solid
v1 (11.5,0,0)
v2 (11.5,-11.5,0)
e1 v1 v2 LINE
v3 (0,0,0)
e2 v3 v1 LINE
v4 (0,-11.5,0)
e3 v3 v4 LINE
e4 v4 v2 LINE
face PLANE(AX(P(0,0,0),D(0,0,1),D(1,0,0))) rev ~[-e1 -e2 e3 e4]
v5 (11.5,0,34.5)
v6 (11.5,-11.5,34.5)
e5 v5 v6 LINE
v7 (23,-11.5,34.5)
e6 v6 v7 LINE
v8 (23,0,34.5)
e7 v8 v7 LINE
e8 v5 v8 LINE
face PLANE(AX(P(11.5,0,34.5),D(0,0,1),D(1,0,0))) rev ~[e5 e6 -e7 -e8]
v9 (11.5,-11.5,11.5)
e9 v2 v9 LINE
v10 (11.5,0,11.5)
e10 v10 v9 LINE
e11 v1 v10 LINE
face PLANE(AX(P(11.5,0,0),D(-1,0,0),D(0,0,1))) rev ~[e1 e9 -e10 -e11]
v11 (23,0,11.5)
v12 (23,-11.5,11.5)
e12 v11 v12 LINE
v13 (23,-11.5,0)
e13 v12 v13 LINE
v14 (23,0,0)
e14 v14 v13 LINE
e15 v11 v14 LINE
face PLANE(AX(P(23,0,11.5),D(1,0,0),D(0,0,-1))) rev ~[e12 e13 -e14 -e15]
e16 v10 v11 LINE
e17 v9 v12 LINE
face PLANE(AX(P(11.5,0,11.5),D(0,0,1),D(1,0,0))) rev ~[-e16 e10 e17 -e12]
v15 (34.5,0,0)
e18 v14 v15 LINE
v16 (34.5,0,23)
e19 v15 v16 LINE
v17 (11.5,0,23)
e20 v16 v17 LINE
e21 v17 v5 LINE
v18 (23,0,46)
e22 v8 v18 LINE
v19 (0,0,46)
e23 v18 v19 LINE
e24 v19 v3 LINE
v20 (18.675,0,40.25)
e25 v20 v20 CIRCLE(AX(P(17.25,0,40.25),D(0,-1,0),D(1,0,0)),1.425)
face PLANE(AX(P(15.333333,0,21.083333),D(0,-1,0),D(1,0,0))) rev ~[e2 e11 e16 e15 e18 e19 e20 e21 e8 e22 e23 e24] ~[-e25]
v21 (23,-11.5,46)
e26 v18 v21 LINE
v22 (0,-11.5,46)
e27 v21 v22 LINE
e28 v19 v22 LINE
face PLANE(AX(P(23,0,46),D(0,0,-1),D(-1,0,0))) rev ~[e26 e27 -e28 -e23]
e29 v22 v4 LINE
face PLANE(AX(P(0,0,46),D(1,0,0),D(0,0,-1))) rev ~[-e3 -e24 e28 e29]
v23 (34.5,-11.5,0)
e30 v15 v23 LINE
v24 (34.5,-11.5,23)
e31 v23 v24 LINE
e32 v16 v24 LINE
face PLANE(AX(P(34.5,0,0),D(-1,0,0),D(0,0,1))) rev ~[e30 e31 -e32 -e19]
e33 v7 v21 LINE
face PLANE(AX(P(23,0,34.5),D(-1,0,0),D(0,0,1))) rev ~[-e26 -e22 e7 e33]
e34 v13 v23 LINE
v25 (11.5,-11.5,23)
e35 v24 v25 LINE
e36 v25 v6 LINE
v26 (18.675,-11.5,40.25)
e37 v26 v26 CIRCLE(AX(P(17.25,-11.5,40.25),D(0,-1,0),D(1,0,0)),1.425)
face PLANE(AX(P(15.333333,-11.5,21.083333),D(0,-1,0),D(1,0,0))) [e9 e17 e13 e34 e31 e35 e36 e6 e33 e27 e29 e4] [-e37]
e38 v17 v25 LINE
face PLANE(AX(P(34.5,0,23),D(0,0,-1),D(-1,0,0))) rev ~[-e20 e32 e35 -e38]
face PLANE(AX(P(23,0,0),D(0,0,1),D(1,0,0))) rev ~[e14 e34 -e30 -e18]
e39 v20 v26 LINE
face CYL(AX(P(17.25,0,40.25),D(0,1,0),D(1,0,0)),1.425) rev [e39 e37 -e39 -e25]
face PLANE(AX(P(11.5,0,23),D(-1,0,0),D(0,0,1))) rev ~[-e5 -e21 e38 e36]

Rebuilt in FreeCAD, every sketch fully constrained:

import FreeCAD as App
import Part
import Sketcher


def add_polygon(sketch, points):
    """Adds a closed chain of lines whose ends are joined by coincident constraints."""
    first, n = sketch.GeometryCount, len(points)
    for a, b in zip(points, points[1:] + points[:1]):
        sketch.addGeometry(Part.LineSegment(App.Vector(*a, 0), App.Vector(*b, 0)), False)
    for i in range(n):
        sketch.addConstraint(Sketcher.Constraint("Coincident", first + i, 2, first + (i + 1) % n, 1))

doc = App.newDocument("Part")
body = doc.addObject("PartDesign::Body", "Body")

# Sketch on XZ plane
sketch1 = body.newObject("Sketcher::SketchObject", "Sketch")
sketch1.AttachmentSupport = (doc.getObject("XZ_Plane"), [""])
sketch1.MapMode = "FlatFace"
add_polygon(sketch1, [(0, 46), (0, 0), (11.5, 0), (11.5, 11.5), (23, 11.5), (23, 0), (34.5, 0), (34.5, 23), (11.5, 23), (11.5, 34.5), (23, 34.5), (23, 46)])  # lines 0-11
sketch1.addGeometry(Part.Circle(App.Vector(17.2, 40.2, 0), App.Vector(0, 0, 1), 1.4), False)  # 12
sketch1.addConstraint(Sketcher.Constraint("Vertical", 0))
sketch1.addConstraint(Sketcher.Constraint("Horizontal", 1))
sketch1.addConstraint(Sketcher.Constraint("Vertical", 2))
sketch1.addConstraint(Sketcher.Constraint("Horizontal", 3))
sketch1.addConstraint(Sketcher.Constraint("Vertical", 4))
sketch1.addConstraint(Sketcher.Constraint("Horizontal", 5))
sketch1.addConstraint(Sketcher.Constraint("Vertical", 6))
sketch1.addConstraint(Sketcher.Constraint("Horizontal", 7))
sketch1.addConstraint(Sketcher.Constraint("Vertical", 8))
sketch1.addConstraint(Sketcher.Constraint("Horizontal", 9))
sketch1.addConstraint(Sketcher.Constraint("Vertical", 10))
sketch1.addConstraint(Sketcher.Constraint("Horizontal", 11))
sketch1.addConstraint(Sketcher.Constraint("Coincident", 0, 2, -1, 1))
sketch1.addConstraint(Sketcher.Constraint("PointOnObject", 4, 2, -1))
sketch1.addConstraint(Sketcher.Constraint("Vertical", 2, 2, 7, 2))
sketch1.addConstraint(Sketcher.Constraint("Vertical", 4, 2, 9, 2))
sketch1.addConstraint(Sketcher.Constraint("Equal", 1, 3))
sketch1.addConstraint(Sketcher.Constraint("Equal", 3, 5))
sketch1.addConstraint(Sketcher.Constraint("Equal", 9, 2))
sketch1.addConstraint(Sketcher.Constraint("Equal", 11, 6))
sketch1.addConstraint(Sketcher.Constraint("Equal", 4, 8))
sketch1.addConstraint(Sketcher.Constraint("Equal", 8, 10))
sketch1.addConstraint(Sketcher.Constraint("Diameter", 12, 2.85))
sketch1.addConstraint(Sketcher.Constraint("DistanceX", 7, 2, 7, 1, 23.0))
sketch1.addConstraint(Sketcher.Constraint("DistanceX", -1, 1, 12, 3, 17.25))
sketch1.addConstraint(Sketcher.Constraint("DistanceY", -1, 1, 12, 3, 40.25))
pad1 = body.newObject("PartDesign::Pad", "Pad")
pad1.Profile = sketch1
pad1.Length = 11.5

doc.recompute()
